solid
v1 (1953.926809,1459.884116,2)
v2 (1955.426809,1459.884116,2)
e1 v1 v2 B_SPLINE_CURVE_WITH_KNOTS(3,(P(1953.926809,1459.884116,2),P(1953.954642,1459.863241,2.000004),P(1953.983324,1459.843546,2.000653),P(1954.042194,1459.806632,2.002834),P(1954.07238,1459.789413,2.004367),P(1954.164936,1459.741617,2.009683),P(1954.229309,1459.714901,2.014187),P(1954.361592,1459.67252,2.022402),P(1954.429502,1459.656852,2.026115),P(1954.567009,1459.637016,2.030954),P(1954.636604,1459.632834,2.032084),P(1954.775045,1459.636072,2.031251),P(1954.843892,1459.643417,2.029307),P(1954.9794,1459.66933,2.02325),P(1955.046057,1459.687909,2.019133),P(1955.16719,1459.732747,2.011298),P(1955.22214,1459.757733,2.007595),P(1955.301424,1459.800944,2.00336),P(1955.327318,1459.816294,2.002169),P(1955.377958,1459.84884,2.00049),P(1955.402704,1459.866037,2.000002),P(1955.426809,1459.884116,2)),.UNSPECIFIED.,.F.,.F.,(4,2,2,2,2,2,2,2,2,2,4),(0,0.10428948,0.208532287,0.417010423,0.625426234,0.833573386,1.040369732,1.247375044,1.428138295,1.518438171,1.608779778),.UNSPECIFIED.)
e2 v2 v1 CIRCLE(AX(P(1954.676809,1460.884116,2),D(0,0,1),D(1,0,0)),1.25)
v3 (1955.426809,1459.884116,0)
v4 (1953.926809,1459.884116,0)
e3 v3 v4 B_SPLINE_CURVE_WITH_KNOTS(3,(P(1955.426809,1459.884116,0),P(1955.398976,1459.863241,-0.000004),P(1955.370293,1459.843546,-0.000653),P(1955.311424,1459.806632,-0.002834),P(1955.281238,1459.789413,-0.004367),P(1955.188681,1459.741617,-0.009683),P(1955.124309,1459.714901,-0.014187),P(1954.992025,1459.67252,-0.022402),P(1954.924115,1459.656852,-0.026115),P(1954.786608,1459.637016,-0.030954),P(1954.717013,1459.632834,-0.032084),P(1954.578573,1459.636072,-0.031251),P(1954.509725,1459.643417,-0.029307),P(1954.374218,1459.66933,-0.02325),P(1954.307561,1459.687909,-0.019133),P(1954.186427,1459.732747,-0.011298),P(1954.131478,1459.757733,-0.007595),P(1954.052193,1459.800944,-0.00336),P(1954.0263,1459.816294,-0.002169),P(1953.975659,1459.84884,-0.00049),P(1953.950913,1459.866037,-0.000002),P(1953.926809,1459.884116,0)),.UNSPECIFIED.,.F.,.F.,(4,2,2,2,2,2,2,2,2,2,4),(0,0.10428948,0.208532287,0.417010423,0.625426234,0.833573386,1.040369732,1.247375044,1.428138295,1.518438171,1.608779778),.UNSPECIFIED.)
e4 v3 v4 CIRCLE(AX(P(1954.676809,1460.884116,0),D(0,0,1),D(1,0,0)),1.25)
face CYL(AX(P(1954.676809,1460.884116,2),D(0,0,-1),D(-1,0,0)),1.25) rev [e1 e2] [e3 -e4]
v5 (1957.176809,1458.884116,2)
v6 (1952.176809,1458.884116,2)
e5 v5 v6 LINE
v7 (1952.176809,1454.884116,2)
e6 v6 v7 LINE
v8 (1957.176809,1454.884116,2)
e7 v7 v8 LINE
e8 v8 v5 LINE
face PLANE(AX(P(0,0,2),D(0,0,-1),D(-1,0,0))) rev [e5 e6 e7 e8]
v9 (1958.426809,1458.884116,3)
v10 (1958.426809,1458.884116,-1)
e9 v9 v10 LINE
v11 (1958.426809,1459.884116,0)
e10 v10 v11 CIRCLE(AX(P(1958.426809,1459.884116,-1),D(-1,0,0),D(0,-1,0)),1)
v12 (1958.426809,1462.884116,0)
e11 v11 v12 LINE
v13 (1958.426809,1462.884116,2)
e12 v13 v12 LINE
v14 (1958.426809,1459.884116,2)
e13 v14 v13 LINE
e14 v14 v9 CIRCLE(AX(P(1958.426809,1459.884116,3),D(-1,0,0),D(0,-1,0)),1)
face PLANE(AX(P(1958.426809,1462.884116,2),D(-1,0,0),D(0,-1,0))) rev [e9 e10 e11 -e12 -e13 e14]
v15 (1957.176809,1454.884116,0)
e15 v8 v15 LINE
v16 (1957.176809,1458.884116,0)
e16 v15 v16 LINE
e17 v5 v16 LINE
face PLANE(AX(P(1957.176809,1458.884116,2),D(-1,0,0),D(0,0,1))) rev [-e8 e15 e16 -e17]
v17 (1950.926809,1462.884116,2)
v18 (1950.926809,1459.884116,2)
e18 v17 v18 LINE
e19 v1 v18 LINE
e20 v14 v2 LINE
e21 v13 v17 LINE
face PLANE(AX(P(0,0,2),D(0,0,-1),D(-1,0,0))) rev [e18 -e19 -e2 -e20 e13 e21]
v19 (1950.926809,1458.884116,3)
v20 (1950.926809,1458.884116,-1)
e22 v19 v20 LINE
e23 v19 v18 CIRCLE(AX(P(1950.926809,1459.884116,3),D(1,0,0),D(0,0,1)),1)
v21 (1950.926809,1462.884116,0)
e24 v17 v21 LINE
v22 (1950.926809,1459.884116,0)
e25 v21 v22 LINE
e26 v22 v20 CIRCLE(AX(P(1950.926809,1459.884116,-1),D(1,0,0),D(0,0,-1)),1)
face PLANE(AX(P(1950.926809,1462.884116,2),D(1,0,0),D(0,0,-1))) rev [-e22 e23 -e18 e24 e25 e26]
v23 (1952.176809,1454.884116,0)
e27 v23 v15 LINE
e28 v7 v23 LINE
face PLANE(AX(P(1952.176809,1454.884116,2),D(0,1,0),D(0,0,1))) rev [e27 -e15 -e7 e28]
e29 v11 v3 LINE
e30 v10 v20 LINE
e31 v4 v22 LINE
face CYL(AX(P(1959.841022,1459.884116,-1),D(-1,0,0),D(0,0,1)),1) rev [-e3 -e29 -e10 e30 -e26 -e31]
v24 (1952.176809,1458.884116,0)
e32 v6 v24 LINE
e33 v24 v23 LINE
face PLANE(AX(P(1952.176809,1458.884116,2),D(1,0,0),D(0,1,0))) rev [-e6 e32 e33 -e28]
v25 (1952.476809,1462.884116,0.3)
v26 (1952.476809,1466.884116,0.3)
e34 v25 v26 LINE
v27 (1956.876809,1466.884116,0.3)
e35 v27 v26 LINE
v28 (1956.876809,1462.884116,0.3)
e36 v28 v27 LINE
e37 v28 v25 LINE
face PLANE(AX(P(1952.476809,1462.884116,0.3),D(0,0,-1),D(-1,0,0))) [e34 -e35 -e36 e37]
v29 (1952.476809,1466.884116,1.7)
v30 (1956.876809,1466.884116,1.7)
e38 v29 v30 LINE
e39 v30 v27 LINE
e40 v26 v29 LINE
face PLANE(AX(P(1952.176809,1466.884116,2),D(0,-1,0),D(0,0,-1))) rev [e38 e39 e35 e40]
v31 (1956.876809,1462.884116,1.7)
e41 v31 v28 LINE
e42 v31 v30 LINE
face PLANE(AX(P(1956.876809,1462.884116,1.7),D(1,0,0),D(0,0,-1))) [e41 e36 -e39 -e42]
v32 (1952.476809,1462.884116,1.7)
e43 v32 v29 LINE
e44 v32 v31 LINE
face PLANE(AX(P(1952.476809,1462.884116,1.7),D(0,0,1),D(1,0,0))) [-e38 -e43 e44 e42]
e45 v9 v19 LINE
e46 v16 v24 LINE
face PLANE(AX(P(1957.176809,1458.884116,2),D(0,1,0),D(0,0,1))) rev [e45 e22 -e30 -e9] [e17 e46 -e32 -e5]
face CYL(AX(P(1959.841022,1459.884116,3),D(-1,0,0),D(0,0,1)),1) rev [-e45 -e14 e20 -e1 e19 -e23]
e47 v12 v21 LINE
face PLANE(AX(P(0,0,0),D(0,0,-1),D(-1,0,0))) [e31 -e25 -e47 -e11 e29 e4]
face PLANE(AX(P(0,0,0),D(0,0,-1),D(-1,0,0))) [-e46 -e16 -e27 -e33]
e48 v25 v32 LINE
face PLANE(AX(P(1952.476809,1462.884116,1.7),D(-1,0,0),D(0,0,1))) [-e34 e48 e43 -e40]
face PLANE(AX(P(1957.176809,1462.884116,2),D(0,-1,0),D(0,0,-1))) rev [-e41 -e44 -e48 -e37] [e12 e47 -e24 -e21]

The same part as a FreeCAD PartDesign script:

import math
import FreeCAD as App
import Part
import Sketcher
from FreeCAD import Vector

doc = App.newDocument("Part")
params = doc.addObject("Spreadsheet::Sheet", "Params")
for row, (alias, value) in enumerate([
    ("sketch1_diameter", "2.5 mm"),
    ("sketch1_width", "5 mm"),
    ("sketch1_height", "4 mm"),
    ("sketch1_width2", "1.25 mm"),
    ("pad1_length", "2 mm"),
    ("sketch2_radius", "1 mm"),
    ("pad2_length", "7.5 mm"),
    ("sketch3_diameter", "2.5 mm"),
    ("sketch4_width", "5 mm"),
    ("sketch4_height", "2 mm"),
    ("sketch4_width2", "4.4 mm"),
    ("sketch4_height2", "1.4 mm"),
    ("pocket2_length", "4 mm"),
], start=1):
    params.set(f"A{row}", alias)
    params.set(f"B{row}", "=" + value)
    params.setAlias(f"B{row}", alias)

body = doc.addObject("PartDesign::Body", "Body")

# Sketch on XY plane
sketch1 = body.newObject("Sketcher::SketchObject", "Sketch")
sketch1.AttachmentSupport = (doc.getObject("XY_Plane"), [""])
sketch1.MapMode = "FlatFace"
sketch1.addGeometry([
    Part.LineSegment(Vector(1957.2, 1466.9, 0), Vector(1952.2, 1466.9, 0)),  # 0
    Part.LineSegment(Vector(1952.2, 1466.9, 0), Vector(1952.2, 1462.9, 0)),  # 1
    Part.LineSegment(Vector(1952.2, 1462.9, 0), Vector(1950.9, 1462.9, 0)),  # 2
    Part.LineSegment(Vector(1950.9, 1462.9, 0), Vector(1950.9, 1458.9, 0)),  # 3
    Part.LineSegment(Vector(1950.9, 1458.9, 0), Vector(1952.2, 1458.9, 0)),  # 4
    Part.LineSegment(Vector(1952.2, 1458.9, 0), Vector(1952.2, 1454.9, 0)),  # 5
    Part.LineSegment(Vector(1952.2, 1454.9, 0), Vector(1957.2, 1454.9, 0)),  # 6
    Part.LineSegment(Vector(1957.2, 1454.9, 0), Vector(1957.2, 1458.9, 0)),  # 7
    Part.LineSegment(Vector(1957.2, 1458.9, 0), Vector(1958.4, 1458.9, 0)),  # 8
    Part.LineSegment(Vector(1958.4, 1458.9, 0), Vector(1958.4, 1462.9, 0)),  # 9
    Part.LineSegment(Vector(1958.4, 1462.9, 0), Vector(1957.2, 1462.9, 0)),  # 10
    Part.LineSegment(Vector(1957.2, 1462.9, 0), Vector(1957.2, 1466.9, 0)),  # 11
    Part.Circle(Vector(1954.7, 1460.9, 0), Vector(0, 0, 1), 1.2),  # 12
], False)
sketch1.addConstraint([
    Sketcher.Constraint("Coincident", 0, 2, 1, 1),
    Sketcher.Constraint("Coincident", 1, 2, 2, 1),
    Sketcher.Constraint("Coincident", 2, 2, 3, 1),
    Sketcher.Constraint("Coincident", 3, 2, 4, 1),
    Sketcher.Constraint("Coincident", 4, 2, 5, 1),
    Sketcher.Constraint("Coincident", 5, 2, 6, 1),
    Sketcher.Constraint("Coincident", 6, 2, 7, 1),
    Sketcher.Constraint("Coincident", 7, 2, 8, 1),
    Sketcher.Constraint("Coincident", 8, 2, 9, 1),
    Sketcher.Constraint("Coincident", 9, 2, 10, 1),
    Sketcher.Constraint("Coincident", 10, 2, 11, 1),
    Sketcher.Constraint("Coincident", 11, 2, 0, 1),
    Sketcher.Constraint("Horizontal", 0),
    Sketcher.Constraint("Vertical", 1),
    Sketcher.Constraint("Horizontal", 2),
    Sketcher.Constraint("Vertical", 3),
    Sketcher.Constraint("Horizontal", 4),
    Sketcher.Constraint("Vertical", 5),
    Sketcher.Constraint("Horizontal", 6),
    Sketcher.Constraint("Vertical", 7),
    Sketcher.Constraint("Horizontal", 8),
    Sketcher.Constraint("Vertical", 9),
    Sketcher.Constraint("Horizontal", 10),
    Sketcher.Constraint("Vertical", 11),
    Sketcher.Constraint("Horizontal", 4, 2, 7, 2),
    Sketcher.Constraint("Horizontal", 2, 2, 9, 2),
    Sketcher.Constraint("Vertical", 1, 2, 4, 2),
    Sketcher.Constraint("Vertical", 7, 2, 10, 2),
    Sketcher.Constraint("Equal", 4, 8),
    Sketcher.Constraint("Equal", 1, 3),
    Sketcher.Constraint("Equal", 3, 5),
    Sketcher.Constraint("Diameter", 12, 2.5),
    Sketcher.Constraint("DistanceX", 0, 2, 0, 1, 5.0),
    Sketcher.Constraint("DistanceY", 1, 2, 1, 1, 4.0),
    Sketcher.Constraint("DistanceY", 12, 3, 0, 2, 6.0),
    Sketcher.Constraint("DistanceX", 2, 2, 2, 1, 1.25),
    Sketcher.Constraint("DistanceX", 0, 2, 12, 3, 2.5),
    Sketcher.Constraint("DistanceX", -1, 1, 12, 3, 1954.676809),
    Sketcher.Constraint("DistanceY", -1, 1, 12, 3, 1460.884116),
])
sketch1.setExpression("Constraints[31]", "Params.sketch1_diameter")
sketch1.setExpression("Constraints[32]", "Params.sketch1_width")
sketch1.setExpression("Constraints[33]", "Params.sketch1_height")
sketch1.setExpression("Constraints[35]", "Params.sketch1_width2")
pad1 = body.newObject("PartDesign::Pad", "Pad")
pad1.Profile = sketch1
pad1.setExpression("Length", "Params.pad1_length")

# Sketch on YZ plane
sketch2 = body.newObject("Sketcher::SketchObject", "Sketch001")
sketch2.AttachmentSupport = (doc.getObject("YZ_Plane"), [""])
sketch2.MapMode = "FlatFace"
sketch2.AttachmentOffset = App.Placement(Vector(0, 0, 1950.926809), App.Rotation())
sketch2.addGeometry([
    Part.LineSegment(Vector(1459.9, 2, 0), Vector(1458.9, 2, 0)),  # 0
    Part.LineSegment(Vector(1458.9, 2, 0), Vector(1458.9, 3, 0)),  # 1
    Part.ArcOfCircle(Part.Circle(Vector(1459.9, 3, 0), Vector(0, 0, 1), 1), math.radians(-180), math.radians(-90)),  # 2
    Part.LineSegment(Vector(1458.9, -1, 0), Vector(1458.9, 0, 0)),  # 3
    Part.LineSegment(Vector(1458.9, 0, 0), Vector(1459.9, 0, 0)),  # 4
    Part.ArcOfCircle(Part.Circle(Vector(1459.9, -1, 0), Vector(0, 0, 1), 1), math.radians(90), math.radians(180)),  # 5
], False)
sketch2.addConstraint([
    Sketcher.Constraint("Coincident", 0, 2, 1, 1),
    Sketcher.Constraint("Tangent", 1, 2, 2, 1),
    Sketcher.Constraint("Tangent", 2, 2, 0, 1),
    Sketcher.Constraint("Coincident", 3, 2, 4, 1),
    Sketcher.Constraint("Tangent", 4, 2, 5, 1),
    Sketcher.Constraint("Tangent", 5, 2, 3, 1),
    Sketcher.Constraint("Horizontal", 0),
    Sketcher.Constraint("Vertical", 1),
    Sketcher.Constraint("Vertical", 3),
    Sketcher.Constraint("Horizontal", 4),
    Sketcher.Constraint("Equal", 2, 5),
    Sketcher.Constraint("PointOnObject", 3, 2, -1),
    Sketcher.Constraint("Vertical", 2, 3, 5, 3),
    Sketcher.Constraint("Radius", 2, 1.0),
    Sketcher.Constraint("DistanceY", -1, 1, 2, 3, 3.0),
    Sketcher.Constraint("DistanceX", -1, 1, 2, 3, 1459.884116),
])
sketch2.setExpression("Constraints[13]", "Params.sketch2_radius")
pad2 = body.newObject("PartDesign::Pad", "Pad001")
pad2.Profile = sketch2
pad2.setExpression("Length", "Params.pad2_length")

# Sketch on XY plane
sketch3 = body.newObject("Sketcher::SketchObject", "Sketch002")
sketch3.AttachmentSupport = (doc.getObject("XY_Plane"), [""])
sketch3.MapMode = "FlatFace"
sketch3.AttachmentOffset = App.Placement(Vector(0, 0, 2), App.Rotation())
sketch3.addGeometry(Part.Circle(Vector(1954.7, 1460.9, 0), Vector(0, 0, 1), 1.2), False)
sketch3.addConstraint([
    Sketcher.Constraint("Diameter", 0, 2.5),
    Sketcher.Constraint("DistanceX", -1, 1, 0, 3, 1954.676809),
    Sketcher.Constraint("DistanceY", -1, 1, 0, 3, 1460.884116),
])
sketch3.setExpression("Constraints[0]", "Params.sketch3_diameter")
pocket1 = body.newObject("PartDesign::Pocket", "Pocket")
pocket1.Profile = sketch3
pocket1.Type = "ThroughAll"
pocket1.Midplane = True

# Sketch on XZ plane
sketch4 = body.newObject("Sketcher::SketchObject", "Sketch003")
sketch4.AttachmentSupport = (doc.getObject("XZ_Plane"), [""])
sketch4.MapMode = "FlatFace"
sketch4.AttachmentOffset = App.Placement(Vector(0, 0, -1466.884116), App.Rotation())
sketch4.addGeometry([
    Part.LineSegment(Vector(1952.2, 0, 0), Vector(1952.2, 2, 0)),  # 0
    Part.LineSegment(Vector(1952.2, 2, 0), Vector(1957.2, 2, 0)),  # 1
    Part.LineSegment(Vector(1957.2, 2, 0), Vector(1957.2, 0, 0)),  # 2
    Part.LineSegment(Vector(1957.2, 0, 0), Vector(1952.2, 0, 0)),  # 3
    Part.LineSegment(Vector(1956.9, 1.7, 0), Vector(1952.5, 1.7, 0)),  # 4
    Part.LineSegment(Vector(1952.5, 1.7, 0), Vector(1952.5, 0.3, 0)),  # 5
    Part.LineSegment(Vector(1952.5, 0.3, 0), Vector(1956.9, 0.3, 0)),  # 6
    Part.LineSegment(Vector(1956.9, 0.3, 0), Vector(1956.9, 1.7, 0)),  # 7
], False)
sketch4.addConstraint([
    Sketcher.Constraint("Coincident", 0, 2, 1, 1),
    Sketcher.Constraint("Coincident", 1, 2, 2, 1),
    Sketcher.Constraint("Coincident", 2, 2, 3, 1),
    Sketcher.Constraint("Coincident", 3, 2, 0, 1),
    Sketcher.Constraint("Coincident", 4, 2, 5, 1),
    Sketcher.Constraint("Coincident", 5, 2, 6, 1),
    Sketcher.Constraint("Coincident", 6, 2, 7, 1),
    Sketcher.Constraint("Coincident", 7, 2, 4, 1),
    Sketcher.Constraint("Vertical", 0),
    Sketcher.Constraint("Horizontal", 1),
    Sketcher.Constraint("Vertical", 2),
    Sketcher.Constraint("Horizontal", 3),
    Sketcher.Constraint("Horizontal", 4),
    Sketcher.Constraint("Vertical", 5),
    Sketcher.Constraint("Horizontal", 6),
    Sketcher.Constraint("Vertical", 7),
    Sketcher.Constraint("PointOnObject", 2, 2, -1),
    Sketcher.Constraint("DistanceX", 1, 1, 1, 2, 5.0),
    Sketcher.Constraint("DistanceY", 0, 1, 0, 2, 2.0),
    Sketcher.Constraint("DistanceX", 4, 2, 4, 1, 4.4),
    Sketcher.Constraint("DistanceY", 5, 2, 5, 1, 1.4),
    Sketcher.Constraint("DistanceY", -1, 1, 4, 2, 1.7),
    Sketcher.Constraint("DistanceX", 0, 2, 4, 2, 0.3),
    Sketcher.Constraint("DistanceX", -1, 1, 0, 2, 1952.176809),
])
sketch4.setExpression("Constraints[17]", "Params.sketch4_width")
sketch4.setExpression("Constraints[18]", "Params.sketch4_height")
sketch4.setExpression("Constraints[19]", "Params.sketch4_width2")
sketch4.setExpression("Constraints[20]", "Params.sketch4_height2")
pocket2 = body.newObject("PartDesign::Pocket", "Pocket001")
pocket2.Profile = sketch4
pocket2.setExpression("Length", "Params.pocket2_length")
pocket2.Reversed = True

doc.recompute()
